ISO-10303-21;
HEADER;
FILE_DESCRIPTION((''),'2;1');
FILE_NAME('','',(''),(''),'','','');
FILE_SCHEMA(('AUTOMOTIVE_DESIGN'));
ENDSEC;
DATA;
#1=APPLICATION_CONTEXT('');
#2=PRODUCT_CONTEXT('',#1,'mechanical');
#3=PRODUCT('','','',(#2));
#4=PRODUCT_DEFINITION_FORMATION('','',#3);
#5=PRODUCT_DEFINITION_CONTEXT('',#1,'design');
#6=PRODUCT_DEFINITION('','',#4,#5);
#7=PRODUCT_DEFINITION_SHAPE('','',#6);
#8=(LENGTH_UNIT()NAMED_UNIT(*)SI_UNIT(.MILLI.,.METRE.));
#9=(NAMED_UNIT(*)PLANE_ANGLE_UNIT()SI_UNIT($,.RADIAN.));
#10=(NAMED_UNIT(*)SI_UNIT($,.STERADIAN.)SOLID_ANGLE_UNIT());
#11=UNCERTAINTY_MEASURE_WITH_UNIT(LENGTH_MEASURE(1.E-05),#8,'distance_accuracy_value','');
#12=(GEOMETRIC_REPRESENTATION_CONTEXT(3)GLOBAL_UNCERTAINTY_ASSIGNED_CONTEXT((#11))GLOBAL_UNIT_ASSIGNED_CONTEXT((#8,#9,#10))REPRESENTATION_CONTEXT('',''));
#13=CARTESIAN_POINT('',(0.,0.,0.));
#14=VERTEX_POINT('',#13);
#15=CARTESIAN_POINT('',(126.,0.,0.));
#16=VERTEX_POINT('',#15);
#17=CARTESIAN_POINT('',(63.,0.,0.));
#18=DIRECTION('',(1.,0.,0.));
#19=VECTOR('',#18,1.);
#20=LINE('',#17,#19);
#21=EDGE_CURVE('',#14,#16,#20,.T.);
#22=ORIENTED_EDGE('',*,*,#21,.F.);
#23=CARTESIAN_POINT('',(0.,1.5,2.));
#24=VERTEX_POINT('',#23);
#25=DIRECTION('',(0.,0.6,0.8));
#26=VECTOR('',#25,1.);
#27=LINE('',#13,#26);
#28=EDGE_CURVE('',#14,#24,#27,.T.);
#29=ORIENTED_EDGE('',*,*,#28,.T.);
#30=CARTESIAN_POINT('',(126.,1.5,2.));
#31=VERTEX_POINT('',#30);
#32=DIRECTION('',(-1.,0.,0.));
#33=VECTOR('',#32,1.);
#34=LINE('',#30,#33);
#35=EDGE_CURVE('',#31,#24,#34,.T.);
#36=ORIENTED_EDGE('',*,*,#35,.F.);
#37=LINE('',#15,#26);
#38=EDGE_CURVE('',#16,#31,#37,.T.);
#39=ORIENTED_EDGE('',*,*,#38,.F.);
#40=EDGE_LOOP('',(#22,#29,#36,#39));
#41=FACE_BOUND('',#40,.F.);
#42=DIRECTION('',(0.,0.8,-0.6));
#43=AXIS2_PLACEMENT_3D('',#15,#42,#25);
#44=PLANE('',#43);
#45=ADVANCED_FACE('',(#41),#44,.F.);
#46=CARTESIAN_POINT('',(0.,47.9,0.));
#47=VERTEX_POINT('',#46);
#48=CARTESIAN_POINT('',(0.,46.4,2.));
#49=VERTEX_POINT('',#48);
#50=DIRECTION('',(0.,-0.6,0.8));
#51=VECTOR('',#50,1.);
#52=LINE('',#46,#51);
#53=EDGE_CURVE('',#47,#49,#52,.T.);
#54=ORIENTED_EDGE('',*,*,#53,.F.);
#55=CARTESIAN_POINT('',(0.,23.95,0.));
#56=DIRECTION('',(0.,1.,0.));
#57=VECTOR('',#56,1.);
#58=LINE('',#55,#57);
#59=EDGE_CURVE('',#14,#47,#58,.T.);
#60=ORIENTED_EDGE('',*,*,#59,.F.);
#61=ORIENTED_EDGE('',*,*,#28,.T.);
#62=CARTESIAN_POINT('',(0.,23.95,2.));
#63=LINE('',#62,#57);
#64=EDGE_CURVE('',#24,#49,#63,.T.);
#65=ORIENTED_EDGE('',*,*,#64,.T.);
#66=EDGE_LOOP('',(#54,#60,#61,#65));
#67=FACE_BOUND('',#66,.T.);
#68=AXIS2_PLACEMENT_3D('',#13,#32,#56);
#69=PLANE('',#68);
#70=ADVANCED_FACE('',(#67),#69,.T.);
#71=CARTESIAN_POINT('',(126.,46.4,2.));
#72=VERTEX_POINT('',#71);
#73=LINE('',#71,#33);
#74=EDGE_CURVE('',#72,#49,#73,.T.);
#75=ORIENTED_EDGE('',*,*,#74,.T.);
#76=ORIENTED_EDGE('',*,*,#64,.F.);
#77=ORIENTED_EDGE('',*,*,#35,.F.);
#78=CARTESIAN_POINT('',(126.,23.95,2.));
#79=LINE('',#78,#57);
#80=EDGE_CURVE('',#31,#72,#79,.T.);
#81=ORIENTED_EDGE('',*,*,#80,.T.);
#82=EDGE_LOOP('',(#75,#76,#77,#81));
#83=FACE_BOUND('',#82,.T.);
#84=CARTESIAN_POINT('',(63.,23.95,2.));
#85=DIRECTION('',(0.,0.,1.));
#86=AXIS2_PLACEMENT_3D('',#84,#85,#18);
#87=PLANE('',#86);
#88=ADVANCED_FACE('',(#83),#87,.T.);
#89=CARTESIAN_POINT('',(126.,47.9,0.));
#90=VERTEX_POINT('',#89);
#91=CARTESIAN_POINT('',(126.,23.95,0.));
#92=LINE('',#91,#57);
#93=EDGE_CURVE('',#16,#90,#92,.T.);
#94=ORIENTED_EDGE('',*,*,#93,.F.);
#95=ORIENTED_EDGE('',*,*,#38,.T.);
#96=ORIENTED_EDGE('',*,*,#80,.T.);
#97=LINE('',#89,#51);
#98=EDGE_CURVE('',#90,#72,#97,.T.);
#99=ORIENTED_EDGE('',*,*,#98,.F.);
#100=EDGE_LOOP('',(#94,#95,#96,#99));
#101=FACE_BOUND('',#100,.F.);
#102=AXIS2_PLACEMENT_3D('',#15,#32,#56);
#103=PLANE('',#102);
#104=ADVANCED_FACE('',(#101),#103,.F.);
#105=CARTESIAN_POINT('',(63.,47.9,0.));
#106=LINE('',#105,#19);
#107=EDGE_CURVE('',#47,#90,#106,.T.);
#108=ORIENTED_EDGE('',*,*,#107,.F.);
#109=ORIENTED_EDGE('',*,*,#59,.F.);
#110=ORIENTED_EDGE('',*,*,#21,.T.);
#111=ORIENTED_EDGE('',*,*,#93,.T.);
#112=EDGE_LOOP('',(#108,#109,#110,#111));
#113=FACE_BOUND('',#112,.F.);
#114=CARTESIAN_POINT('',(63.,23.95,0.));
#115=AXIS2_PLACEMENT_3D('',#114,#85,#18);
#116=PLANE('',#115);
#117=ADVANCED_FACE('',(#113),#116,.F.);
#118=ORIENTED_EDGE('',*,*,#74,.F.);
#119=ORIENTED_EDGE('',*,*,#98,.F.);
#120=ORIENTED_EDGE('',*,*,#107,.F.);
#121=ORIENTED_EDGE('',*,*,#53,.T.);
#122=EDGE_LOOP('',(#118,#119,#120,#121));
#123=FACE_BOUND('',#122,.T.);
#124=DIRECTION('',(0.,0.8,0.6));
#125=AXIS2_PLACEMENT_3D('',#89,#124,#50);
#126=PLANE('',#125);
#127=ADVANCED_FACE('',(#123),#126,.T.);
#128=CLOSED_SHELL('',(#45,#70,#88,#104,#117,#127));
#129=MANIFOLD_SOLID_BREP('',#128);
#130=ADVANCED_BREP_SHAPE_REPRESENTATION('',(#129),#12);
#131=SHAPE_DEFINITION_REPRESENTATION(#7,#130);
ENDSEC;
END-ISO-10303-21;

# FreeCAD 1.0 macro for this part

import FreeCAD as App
import Part
import Sketcher
from FreeCAD import Vector

doc = App.newDocument("Part")
params = doc.addObject("Spreadsheet::Sheet", "Params")
for row, (alias, value) in enumerate([
    ("sketch1_width", "126 mm"),
    ("sketch1_height", "47.9 mm"),
    ("pad1_length", "2 mm"),
    ("sketch2_height", "2 mm"),
    ("sketch2_width", "1.5 mm"),
    ("pocket1_length", "126 mm"),
], start=1):
    params.set(f"A{row}", alias)
    params.set(f"B{row}", "=" + value)
    params.setAlias(f"B{row}", alias)

body = doc.addObject("PartDesign::Body", "Body")

sketch1 = body.newObject("Sketcher::SketchObject", "Sketch")
sketch1.AttachmentSupport = (doc.getObject("XY_Plane"), [""])
sketch1.MapMode = "FlatFace"
sketch1.addGeometry([
    Part.LineSegment(Vector(0, 47.9, 0), Vector(0, 0, 0)),
    Part.LineSegment(Vector(0, 0, 0), Vector(126, 0, 0)),
    Part.LineSegment(Vector(126, 0, 0), Vector(126, 47.9, 0)),
    Part.LineSegment(Vector(126, 47.9, 0), Vector(0, 47.9, 0)),
], False)
sketch1.addConstraint([
    Sketcher.Constraint("Coincident", 0, 2, 1, 1),
    Sketcher.Constraint("Coincident", 1, 2, 2, 1),
    Sketcher.Constraint("Coincident", 2, 2, 3, 1),
    Sketcher.Constraint("Coincident", 3, 2, 0, 1),
    Sketcher.Constraint("Vertical", 0),
    Sketcher.Constraint("Horizontal", 1),
    Sketcher.Constraint("Vertical", 2),
    Sketcher.Constraint("Horizontal", 3),
    Sketcher.Constraint("Coincident", 0, 2, -1, 1),
    Sketcher.Constraint("DistanceX", 1, 1, 1, 2, 126.0),
    Sketcher.Constraint("DistanceY", 0, 2, 0, 1, 47.9),
])
sketch1.setExpression("Constraints[9]", "Params.sketch1_width")
sketch1.setExpression("Constraints[10]", "Params.sketch1_height")
pad1 = body.newObject("PartDesign::Pad", "Pad")
pad1.Profile = sketch1
pad1.setExpression("Length", "Params.pad1_length")

sketch2 = body.newObject("Sketcher::SketchObject", "Sketch001")
sketch2.AttachmentSupport = (doc.getObject("YZ_Plane"), [""])
sketch2.MapMode = "FlatFace"
sketch2.AttachmentOffset = App.Placement(Vector(0, 0, 126), App.Rotation())
sketch2.addGeometry([
    Part.LineSegment(Vector(0, 0, 0), Vector(1.5, 2, 0)),
    Part.LineSegment(Vector(1.5, 2, 0), Vector(0, 2, 0)),
    Part.LineSegment(Vector(0, 2, 0), Vector(0, 0, 0)),
    Part.LineSegment(Vector(47.9, 2, 0), Vector(46.4, 2, 0)),
    Part.LineSegment(Vector(46.4, 2, 0), Vector(47.9, 0, 0)),
    Part.LineSegment(Vector(47.9, 0, 0), Vector(47.9, 2, 0)),
], False)
sketch2.addConstraint([
    Sketcher.Constraint("Coincident", 0, 2, 1, 1),
    Sketcher.Constraint("Coincident", 1, 2, 2, 1),
    Sketcher.Constraint("Coincident", 2, 2, 0, 1),
    Sketcher.Constraint("Coincident", 3, 2, 4, 1),
    Sketcher.Constraint("Coincident", 4, 2, 5, 1),
    Sketcher.Constraint("Coincident", 5, 2, 3, 1),
    Sketcher.Constraint("Horizontal", 1),
    Sketcher.Constraint("Vertical", 2),
    Sketcher.Constraint("Horizontal", 3),
    Sketcher.Constraint("Vertical", 5),
    Sketcher.Constraint("Coincident", 2, 2, -1, 1),
    Sketcher.Constraint("PointOnObject", 4, 2, -1),
    Sketcher.Constraint("Horizontal", 1, 2, 3, 2),
    Sketcher.Constraint("Equal", 1, 3),
    Sketcher.Constraint("DistanceY", 2, 2, 2, 1, 2.0),
    Sketcher.Constraint("DistanceX", 1, 2, 1, 1, 1.5),
    Sketcher.Constraint("DistanceX", -1, 1, 3, 2, 46.4),
])
sketch2.setExpression("Constraints[14]", "Params.sketch2_height")
sketch2.setExpression("Constraints[15]", "Params.sketch2_width")
pocket1 = body.newObject("PartDesign::Pocket", "Pocket")
pocket1.Profile = sketch2
pocket1.setExpression("Length", "Params.pocket1_length")

doc.recompute()
